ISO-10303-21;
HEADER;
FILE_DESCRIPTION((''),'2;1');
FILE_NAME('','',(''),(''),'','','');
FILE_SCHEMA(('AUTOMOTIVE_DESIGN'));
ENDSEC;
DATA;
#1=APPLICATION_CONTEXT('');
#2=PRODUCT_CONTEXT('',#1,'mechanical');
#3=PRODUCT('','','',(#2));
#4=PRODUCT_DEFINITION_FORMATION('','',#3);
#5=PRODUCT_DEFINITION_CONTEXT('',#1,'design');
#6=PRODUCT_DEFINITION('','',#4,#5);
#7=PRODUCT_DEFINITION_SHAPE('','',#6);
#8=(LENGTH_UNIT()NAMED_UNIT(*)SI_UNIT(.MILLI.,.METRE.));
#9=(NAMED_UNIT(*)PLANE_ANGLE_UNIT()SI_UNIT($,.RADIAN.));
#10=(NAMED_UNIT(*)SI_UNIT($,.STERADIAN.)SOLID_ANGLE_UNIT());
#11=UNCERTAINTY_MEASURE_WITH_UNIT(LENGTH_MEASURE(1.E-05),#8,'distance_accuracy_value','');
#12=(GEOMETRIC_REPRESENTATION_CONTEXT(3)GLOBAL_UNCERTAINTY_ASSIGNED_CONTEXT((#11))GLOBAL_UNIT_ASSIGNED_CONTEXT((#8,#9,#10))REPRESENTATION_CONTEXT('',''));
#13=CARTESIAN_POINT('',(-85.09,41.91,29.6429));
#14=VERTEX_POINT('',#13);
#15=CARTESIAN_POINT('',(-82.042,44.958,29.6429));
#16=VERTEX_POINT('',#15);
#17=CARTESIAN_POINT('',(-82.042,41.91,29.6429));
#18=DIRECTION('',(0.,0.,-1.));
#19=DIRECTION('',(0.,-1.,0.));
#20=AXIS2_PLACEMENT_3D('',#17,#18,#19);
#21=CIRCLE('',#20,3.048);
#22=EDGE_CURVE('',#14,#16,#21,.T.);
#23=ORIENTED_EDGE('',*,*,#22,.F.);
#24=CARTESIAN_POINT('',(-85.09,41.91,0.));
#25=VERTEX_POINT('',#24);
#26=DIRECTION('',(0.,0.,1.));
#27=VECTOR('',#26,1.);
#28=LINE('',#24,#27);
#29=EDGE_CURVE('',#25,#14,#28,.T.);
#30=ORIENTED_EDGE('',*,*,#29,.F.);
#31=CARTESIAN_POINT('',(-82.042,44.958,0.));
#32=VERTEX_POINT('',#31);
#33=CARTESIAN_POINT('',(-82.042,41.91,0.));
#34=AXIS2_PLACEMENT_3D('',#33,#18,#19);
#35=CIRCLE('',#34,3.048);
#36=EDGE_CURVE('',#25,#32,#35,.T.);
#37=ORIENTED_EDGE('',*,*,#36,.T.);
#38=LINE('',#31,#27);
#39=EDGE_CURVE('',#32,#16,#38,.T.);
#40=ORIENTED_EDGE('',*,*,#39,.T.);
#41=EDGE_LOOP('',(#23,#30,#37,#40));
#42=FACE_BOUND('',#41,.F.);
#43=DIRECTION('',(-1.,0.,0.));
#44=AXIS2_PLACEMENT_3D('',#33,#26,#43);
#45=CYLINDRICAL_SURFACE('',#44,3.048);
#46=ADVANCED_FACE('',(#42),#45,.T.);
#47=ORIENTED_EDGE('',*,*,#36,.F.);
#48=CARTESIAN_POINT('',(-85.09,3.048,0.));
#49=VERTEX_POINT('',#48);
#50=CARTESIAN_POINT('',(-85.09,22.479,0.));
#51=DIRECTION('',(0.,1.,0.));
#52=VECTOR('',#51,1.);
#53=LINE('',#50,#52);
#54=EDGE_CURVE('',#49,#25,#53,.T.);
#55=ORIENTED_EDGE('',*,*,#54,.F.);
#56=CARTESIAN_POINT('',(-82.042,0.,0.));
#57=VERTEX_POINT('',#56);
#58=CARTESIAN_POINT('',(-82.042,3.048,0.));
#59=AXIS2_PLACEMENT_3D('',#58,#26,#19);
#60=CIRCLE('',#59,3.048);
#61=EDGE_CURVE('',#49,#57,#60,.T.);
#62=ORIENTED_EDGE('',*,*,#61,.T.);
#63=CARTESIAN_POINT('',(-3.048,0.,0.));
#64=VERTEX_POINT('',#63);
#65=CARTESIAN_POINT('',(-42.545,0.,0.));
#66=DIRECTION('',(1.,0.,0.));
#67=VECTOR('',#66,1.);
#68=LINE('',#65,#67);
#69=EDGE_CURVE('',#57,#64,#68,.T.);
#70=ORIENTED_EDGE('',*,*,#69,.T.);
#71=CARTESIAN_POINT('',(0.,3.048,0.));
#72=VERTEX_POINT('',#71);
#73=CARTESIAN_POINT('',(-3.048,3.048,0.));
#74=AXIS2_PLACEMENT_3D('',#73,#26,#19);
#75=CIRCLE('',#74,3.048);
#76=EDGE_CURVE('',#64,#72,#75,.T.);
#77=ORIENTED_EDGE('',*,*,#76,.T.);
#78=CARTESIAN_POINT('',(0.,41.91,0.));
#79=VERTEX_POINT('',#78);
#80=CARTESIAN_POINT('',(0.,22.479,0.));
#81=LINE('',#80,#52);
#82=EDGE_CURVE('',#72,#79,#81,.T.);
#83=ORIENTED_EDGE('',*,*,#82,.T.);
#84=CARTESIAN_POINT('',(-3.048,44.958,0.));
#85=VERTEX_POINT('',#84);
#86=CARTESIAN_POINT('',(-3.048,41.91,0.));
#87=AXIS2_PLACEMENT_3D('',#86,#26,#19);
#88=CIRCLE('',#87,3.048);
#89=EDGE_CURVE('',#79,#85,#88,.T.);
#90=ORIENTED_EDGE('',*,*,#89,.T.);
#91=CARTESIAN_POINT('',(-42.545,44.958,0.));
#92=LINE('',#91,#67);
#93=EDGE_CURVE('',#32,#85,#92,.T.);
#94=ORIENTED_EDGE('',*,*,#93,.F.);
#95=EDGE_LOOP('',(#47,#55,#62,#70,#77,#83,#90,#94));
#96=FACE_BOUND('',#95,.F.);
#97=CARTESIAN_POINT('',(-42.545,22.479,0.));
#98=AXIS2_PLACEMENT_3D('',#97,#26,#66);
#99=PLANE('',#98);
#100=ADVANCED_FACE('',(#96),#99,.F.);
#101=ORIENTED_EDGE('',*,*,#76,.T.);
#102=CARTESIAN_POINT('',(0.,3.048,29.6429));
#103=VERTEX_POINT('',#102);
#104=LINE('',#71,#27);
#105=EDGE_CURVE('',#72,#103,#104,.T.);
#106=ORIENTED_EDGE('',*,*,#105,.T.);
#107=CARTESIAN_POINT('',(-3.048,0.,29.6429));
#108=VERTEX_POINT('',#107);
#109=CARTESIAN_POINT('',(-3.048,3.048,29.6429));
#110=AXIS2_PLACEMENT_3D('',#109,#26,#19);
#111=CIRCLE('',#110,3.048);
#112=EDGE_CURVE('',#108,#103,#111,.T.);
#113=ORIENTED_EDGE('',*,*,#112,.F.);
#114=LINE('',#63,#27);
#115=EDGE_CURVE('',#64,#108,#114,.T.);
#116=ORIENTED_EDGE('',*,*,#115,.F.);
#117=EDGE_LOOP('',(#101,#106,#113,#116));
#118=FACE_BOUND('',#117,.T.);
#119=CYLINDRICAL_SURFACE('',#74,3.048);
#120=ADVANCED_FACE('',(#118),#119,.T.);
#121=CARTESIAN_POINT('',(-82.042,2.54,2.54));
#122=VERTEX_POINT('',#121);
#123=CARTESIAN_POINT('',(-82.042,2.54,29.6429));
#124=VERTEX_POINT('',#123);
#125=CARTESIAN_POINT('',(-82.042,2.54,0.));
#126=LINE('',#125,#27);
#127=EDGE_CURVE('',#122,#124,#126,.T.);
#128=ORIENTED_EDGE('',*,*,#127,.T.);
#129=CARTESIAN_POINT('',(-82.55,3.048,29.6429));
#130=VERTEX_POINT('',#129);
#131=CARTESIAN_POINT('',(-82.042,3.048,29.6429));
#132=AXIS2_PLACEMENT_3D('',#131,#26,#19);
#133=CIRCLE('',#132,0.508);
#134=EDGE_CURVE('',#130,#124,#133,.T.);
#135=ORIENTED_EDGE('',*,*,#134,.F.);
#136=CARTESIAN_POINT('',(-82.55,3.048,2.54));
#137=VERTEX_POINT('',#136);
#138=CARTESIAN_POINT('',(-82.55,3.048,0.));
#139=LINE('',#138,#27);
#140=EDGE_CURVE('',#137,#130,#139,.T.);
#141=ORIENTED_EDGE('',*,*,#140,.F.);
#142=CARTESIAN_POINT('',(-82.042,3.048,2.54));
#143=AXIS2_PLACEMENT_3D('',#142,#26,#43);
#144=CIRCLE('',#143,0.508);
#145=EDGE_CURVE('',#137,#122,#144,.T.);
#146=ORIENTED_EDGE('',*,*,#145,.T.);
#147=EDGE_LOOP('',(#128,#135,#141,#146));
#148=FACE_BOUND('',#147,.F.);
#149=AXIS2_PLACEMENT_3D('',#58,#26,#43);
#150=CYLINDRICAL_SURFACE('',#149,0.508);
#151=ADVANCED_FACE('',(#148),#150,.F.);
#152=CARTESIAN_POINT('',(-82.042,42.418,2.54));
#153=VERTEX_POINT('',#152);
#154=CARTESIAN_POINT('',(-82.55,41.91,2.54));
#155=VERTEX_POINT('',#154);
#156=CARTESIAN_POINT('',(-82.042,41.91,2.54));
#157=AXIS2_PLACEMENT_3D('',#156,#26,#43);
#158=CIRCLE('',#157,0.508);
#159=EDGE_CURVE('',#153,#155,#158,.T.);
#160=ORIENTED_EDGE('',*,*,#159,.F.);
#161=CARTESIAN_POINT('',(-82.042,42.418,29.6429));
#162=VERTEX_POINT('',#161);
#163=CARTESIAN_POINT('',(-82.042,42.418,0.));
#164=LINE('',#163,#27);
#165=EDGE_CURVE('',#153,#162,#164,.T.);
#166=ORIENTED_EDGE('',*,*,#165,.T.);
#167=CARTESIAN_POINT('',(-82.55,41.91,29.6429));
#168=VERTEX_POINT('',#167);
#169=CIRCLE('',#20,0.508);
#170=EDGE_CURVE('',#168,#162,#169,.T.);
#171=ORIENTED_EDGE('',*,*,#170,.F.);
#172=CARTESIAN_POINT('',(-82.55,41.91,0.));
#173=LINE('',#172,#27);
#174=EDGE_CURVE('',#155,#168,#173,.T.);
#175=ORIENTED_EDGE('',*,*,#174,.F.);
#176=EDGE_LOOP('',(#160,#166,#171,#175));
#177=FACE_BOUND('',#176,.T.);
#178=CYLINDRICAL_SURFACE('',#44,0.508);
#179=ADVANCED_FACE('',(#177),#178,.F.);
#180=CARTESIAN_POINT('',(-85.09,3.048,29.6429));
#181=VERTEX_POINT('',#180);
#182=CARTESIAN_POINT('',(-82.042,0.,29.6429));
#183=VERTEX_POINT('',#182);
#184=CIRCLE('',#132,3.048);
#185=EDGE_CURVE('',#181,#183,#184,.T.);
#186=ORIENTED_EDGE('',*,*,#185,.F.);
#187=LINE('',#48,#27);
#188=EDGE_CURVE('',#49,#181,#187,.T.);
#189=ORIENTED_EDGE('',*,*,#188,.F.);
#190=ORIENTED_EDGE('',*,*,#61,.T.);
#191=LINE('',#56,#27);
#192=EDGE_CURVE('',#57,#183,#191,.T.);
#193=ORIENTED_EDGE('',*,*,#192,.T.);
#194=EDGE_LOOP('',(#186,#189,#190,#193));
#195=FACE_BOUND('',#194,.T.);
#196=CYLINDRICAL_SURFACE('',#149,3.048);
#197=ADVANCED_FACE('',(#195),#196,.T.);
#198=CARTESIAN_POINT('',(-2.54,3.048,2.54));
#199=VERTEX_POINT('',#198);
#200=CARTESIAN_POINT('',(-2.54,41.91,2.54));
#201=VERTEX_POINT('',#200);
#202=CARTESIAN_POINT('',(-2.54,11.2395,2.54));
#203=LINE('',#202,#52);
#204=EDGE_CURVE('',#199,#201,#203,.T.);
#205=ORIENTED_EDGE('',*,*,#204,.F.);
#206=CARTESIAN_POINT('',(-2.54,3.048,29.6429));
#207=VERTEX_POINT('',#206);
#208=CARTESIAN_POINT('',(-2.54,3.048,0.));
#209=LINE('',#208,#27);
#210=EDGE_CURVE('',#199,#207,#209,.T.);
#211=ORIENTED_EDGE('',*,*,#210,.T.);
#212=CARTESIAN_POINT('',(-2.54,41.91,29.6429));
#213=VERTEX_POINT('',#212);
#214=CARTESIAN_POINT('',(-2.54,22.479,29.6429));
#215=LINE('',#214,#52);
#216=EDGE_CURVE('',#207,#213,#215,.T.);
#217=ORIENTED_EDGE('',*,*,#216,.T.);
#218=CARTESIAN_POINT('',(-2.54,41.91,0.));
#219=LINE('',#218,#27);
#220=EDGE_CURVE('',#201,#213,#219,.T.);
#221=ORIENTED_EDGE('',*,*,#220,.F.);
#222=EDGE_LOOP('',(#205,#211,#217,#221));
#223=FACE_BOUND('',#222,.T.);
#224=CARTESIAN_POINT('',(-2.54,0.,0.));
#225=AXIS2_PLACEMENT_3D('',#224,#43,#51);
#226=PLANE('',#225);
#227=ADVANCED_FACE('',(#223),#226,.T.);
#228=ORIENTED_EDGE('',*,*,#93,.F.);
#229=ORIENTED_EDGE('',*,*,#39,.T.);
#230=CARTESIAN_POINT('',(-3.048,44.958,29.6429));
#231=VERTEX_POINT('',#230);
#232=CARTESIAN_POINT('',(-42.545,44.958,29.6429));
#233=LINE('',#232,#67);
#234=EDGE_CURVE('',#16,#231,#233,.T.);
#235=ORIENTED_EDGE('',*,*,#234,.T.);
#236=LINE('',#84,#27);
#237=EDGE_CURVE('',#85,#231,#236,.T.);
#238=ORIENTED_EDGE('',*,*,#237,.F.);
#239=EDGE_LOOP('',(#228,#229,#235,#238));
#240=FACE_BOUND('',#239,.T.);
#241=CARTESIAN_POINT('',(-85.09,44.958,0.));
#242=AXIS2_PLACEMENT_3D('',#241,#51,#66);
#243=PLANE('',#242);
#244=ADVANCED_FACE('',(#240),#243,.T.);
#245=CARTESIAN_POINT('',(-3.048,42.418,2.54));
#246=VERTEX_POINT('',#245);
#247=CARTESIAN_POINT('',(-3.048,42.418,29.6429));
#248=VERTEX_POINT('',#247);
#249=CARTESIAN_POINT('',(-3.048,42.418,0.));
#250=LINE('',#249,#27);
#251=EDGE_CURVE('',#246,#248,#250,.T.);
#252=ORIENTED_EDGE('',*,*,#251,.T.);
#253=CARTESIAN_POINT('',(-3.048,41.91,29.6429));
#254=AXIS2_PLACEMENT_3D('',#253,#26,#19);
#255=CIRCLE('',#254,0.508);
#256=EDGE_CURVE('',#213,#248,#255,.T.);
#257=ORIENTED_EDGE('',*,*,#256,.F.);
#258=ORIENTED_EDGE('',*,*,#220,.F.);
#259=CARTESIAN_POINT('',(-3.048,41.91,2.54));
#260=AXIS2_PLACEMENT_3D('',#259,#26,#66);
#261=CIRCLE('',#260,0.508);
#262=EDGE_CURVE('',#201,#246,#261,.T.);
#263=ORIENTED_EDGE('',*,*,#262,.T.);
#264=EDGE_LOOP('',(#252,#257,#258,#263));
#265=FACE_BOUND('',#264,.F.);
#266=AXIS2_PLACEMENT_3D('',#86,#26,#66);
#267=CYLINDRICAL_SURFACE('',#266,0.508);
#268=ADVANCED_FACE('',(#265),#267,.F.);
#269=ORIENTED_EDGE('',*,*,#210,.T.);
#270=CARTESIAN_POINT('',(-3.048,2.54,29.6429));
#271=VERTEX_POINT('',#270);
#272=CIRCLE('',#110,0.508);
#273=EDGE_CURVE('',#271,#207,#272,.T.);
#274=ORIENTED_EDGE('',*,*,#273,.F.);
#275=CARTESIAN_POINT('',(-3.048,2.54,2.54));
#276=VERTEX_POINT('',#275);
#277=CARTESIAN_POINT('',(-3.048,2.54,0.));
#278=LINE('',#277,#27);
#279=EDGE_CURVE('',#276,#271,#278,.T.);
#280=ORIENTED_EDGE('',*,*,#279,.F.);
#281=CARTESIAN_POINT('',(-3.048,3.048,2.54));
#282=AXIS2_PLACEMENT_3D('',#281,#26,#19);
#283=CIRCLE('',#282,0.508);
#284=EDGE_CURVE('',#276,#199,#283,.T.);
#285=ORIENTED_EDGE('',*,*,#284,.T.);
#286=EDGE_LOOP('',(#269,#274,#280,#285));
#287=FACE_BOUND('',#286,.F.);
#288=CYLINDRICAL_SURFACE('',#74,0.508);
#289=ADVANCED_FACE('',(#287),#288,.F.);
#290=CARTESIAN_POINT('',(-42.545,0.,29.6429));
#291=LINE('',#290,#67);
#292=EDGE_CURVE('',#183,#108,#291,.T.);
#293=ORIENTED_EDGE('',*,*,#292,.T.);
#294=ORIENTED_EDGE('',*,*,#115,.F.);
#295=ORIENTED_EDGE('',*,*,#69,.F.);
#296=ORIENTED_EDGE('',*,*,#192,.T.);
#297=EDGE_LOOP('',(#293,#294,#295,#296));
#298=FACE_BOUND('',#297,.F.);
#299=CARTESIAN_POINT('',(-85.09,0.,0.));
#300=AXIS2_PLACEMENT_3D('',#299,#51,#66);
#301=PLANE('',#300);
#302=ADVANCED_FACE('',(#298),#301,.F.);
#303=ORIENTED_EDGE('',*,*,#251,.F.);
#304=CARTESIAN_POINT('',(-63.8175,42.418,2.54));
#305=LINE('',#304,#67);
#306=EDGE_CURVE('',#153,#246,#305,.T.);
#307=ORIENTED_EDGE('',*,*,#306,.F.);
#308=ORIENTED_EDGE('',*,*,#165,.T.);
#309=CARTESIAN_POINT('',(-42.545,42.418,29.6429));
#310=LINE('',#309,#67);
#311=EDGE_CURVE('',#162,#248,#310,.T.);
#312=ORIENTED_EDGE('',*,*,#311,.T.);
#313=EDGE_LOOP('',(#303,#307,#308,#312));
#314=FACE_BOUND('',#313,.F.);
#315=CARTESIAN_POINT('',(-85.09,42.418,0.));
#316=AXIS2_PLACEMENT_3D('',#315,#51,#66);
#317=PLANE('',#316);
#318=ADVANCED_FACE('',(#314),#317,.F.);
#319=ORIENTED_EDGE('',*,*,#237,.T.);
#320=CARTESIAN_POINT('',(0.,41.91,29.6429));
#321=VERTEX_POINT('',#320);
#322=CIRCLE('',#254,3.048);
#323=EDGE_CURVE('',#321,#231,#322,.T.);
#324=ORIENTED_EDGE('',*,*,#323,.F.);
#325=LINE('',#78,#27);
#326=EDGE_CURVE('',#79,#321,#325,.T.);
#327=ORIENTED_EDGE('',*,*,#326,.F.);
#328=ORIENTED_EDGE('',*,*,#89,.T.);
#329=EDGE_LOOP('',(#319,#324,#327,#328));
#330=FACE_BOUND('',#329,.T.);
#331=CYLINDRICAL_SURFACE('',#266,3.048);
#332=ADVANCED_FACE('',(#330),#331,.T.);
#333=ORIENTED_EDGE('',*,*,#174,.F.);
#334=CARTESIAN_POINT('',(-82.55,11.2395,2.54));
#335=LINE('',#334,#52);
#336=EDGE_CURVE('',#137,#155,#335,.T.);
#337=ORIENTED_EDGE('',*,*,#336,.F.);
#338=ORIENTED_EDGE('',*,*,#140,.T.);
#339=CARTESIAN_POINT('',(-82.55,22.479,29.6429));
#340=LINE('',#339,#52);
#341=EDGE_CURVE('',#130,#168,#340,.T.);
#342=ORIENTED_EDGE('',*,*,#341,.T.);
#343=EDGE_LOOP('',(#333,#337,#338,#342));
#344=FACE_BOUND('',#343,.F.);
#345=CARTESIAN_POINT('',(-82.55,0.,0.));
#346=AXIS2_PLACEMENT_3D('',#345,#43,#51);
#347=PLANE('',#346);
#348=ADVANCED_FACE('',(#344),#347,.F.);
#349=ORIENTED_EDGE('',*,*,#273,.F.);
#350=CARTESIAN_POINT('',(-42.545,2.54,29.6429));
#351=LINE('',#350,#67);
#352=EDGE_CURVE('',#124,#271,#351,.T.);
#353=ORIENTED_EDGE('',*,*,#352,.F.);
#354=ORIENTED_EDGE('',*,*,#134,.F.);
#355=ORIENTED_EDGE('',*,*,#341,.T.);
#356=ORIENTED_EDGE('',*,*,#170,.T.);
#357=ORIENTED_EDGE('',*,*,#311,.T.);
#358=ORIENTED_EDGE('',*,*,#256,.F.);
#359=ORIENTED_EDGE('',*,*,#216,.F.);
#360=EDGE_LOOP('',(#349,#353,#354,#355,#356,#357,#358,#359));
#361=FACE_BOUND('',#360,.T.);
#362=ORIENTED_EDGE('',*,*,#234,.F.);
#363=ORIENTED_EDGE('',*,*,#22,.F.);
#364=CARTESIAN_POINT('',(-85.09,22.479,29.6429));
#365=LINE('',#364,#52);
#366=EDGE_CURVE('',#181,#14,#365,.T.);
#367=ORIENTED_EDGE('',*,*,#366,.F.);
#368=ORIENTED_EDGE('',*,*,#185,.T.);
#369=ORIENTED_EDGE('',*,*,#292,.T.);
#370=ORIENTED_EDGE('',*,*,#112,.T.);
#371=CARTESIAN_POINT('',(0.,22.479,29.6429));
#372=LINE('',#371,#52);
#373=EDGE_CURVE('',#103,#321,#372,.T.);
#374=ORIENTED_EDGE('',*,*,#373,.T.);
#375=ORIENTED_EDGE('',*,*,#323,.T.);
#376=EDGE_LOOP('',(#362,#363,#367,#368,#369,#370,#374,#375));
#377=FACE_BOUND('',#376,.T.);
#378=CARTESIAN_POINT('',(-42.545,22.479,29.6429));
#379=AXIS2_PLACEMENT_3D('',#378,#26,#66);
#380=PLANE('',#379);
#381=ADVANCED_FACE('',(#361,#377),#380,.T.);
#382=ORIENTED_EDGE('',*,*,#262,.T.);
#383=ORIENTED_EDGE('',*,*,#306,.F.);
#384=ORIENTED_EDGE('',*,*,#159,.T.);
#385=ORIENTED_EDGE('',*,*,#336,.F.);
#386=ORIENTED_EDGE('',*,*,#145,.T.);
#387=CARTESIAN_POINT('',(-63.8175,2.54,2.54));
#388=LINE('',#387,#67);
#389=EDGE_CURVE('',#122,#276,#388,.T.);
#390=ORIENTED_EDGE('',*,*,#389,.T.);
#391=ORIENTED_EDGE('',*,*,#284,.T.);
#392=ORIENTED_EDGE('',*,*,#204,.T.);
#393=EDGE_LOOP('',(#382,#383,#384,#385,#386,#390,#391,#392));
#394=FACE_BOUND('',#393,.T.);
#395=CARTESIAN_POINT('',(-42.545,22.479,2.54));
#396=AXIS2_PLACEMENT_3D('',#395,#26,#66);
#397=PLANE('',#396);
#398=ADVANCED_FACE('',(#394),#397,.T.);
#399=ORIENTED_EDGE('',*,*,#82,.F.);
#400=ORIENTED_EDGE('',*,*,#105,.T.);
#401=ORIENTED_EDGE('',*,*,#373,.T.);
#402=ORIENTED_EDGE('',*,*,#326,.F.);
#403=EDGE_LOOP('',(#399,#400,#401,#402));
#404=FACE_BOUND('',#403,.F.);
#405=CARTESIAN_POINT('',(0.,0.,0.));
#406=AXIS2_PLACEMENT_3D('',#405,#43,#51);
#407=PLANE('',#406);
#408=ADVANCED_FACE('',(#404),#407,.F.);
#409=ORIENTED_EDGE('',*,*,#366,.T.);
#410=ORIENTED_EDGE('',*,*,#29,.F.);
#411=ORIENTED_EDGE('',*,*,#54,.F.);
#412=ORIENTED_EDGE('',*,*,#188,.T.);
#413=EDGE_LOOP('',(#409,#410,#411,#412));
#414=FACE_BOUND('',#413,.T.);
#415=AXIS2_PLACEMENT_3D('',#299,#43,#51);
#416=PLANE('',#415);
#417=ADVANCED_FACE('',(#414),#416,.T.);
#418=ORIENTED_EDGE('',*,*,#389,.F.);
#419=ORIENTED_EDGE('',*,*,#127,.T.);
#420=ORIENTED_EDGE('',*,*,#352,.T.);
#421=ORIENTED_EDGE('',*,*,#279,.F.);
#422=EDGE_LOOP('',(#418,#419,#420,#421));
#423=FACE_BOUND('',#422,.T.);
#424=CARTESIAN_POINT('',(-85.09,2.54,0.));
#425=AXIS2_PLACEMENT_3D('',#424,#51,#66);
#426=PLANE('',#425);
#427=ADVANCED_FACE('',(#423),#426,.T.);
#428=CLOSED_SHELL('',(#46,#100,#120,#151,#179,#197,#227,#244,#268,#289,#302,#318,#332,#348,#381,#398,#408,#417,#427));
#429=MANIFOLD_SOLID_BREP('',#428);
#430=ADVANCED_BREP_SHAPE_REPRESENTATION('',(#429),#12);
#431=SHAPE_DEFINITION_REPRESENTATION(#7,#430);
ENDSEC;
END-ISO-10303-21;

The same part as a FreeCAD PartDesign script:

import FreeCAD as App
import Part
import Sketcher

V = App.Vector
Q = App.Units.Quantity


def edges_at(feature, points):
    """Names of the edges that pass closest to the given points."""
    edges = feature.Shape.Edges
    near = lambda p: min(range(len(edges)), key=lambda i: edges[i].distToShape(Part.Vertex(*p))[0])
    return sorted({f"Edge{near(p) + 1}" for p in points})


def faces_at(feature, points):
    """Names of the faces that lie closest to the given points."""
    faces = feature.Shape.Faces
    near = lambda p: min(range(len(faces)), key=lambda i: faces[i].distToShape(Part.Vertex(*p))[0])
    return sorted({f"Face{near(p) + 1}" for p in points})

doc = App.newDocument("Part")
body = doc.addObject("PartDesign::Body", "Body")

# Sketch on XY plane
sketch1 = body.newObject("Sketcher::SketchObject", "Sketch")
sketch1.AttachmentSupport = (doc.getObject("XY_Plane"), [""])
sketch1.MapMode = "FlatFace"
sketch1.addGeometry([
    Part.LineSegment(V(-85.09, 44.958, 0), V(-85.09, 0, 0)),
    Part.LineSegment(V(-85.09, 0, 0), V(0, 0, 0)),
    Part.LineSegment(V(0, 0, 0), V(0, 44.958, 0)),
    Part.LineSegment(V(0, 44.958, 0), V(-85.09, 44.958, 0)),
], False)
sketch1.addConstraint([
    Sketcher.Constraint("Coincident", 0, 2, 1, 1),
    Sketcher.Constraint("Coincident", 1, 2, 2, 1),
    Sketcher.Constraint("Coincident", 2, 2, 3, 1),
    Sketcher.Constraint("Coincident", 3, 2, 0, 1),
    Sketcher.Constraint("Vertical", 0),
    Sketcher.Constraint("Horizontal", 1),
    Sketcher.Constraint("Vertical", 2),
    Sketcher.Constraint("Horizontal", 3),
    Sketcher.Constraint("Coincident", 1, 2, -1, 1),
    Sketcher.Constraint("DistanceX", 1, 1, 1, 2, Q("3.35 in")),
    Sketcher.Constraint("DistanceY", 0, 2, 0, 1, Q("1.77 in")),
])
pad1 = body.newObject("PartDesign::Pad", "Pad")
pad1.Profile = sketch1
pad1.Length = 29.6429
doc.recompute()

fillet = body.newObject("PartDesign::Fillet", "Fillet")
fillet.Base = (pad1, edges_at(pad1, [
    (-85.09, 44.958, 14.821),
    (-85.09, 0, 14.821),
    (0, 0, 14.821),
    (0, 44.958, 14.821),
]))
fillet.Radius = Q("0.12 in")
doc.recompute()

thickness = body.newObject("PartDesign::Thickness", "Thickness")
thickness.Base = (fillet, faces_at(fillet, [(-42.545, 22.479, 29.643)]))
thickness.Value = Q("0.1 in")
thickness.Reversed = True
thickness.Join = "Arc"

doc.recompute()
